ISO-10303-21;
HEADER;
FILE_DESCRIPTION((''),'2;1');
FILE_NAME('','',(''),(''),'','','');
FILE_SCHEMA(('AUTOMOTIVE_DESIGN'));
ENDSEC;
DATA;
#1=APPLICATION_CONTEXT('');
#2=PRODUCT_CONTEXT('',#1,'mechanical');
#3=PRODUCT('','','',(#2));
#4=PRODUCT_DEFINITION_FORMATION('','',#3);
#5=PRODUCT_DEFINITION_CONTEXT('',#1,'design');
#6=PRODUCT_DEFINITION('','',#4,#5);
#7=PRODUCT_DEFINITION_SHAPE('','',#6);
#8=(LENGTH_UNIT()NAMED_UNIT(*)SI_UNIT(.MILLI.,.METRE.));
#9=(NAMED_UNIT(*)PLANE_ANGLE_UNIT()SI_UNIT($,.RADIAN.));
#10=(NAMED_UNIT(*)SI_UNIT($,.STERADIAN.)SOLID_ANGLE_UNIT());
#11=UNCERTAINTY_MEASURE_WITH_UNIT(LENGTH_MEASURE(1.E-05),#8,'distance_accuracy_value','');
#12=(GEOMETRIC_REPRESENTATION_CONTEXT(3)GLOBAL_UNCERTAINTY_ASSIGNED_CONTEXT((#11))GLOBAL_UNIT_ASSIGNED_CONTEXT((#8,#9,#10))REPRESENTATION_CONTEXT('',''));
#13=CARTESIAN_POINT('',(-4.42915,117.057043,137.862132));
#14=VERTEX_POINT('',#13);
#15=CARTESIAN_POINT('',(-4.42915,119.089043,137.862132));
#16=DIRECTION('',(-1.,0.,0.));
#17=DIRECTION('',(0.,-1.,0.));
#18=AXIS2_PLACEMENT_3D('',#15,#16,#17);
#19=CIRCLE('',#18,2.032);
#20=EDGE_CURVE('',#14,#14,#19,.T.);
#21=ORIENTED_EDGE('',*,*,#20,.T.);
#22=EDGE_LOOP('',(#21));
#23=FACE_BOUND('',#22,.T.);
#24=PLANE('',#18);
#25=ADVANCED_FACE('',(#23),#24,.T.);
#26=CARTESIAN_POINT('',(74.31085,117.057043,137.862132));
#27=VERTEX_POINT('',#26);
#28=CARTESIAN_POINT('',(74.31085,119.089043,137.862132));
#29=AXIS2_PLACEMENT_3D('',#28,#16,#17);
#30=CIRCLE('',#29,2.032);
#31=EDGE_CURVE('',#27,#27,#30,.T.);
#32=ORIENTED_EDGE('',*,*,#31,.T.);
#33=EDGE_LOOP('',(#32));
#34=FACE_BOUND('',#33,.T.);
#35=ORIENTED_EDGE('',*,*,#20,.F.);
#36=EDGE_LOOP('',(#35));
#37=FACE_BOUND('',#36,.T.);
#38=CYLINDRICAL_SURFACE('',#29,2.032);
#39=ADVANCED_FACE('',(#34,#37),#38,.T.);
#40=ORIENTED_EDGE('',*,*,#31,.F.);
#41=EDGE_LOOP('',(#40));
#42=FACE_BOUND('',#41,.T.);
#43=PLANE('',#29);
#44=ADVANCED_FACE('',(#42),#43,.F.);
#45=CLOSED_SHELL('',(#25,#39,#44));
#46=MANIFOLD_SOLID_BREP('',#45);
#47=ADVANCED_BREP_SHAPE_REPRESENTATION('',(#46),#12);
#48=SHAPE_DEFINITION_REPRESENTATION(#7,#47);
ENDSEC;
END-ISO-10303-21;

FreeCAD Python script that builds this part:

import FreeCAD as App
import Part
import Sketcher
from FreeCAD import Vector
Q = App.Units.Quantity

doc = App.newDocument("Part")
params = doc.addObject("Spreadsheet::Sheet", "Params")
for row, (alias, value) in enumerate([
    ("sketch1_diameter", "0.16 in"),
    ("pad1_length", "3.1 in"),
], start=1):
    params.set(f"A{row}", alias)
    params.set(f"B{row}", "=" + value)
    params.setAlias(f"B{row}", alias)

body = doc.addObject("PartDesign::Body", "Body")

sketch1 = body.newObject("Sketcher::SketchObject", "Sketch")
sketch1.AttachmentSupport = (doc.getObject("YZ_Plane"), [""])
sketch1.MapMode = "FlatFace"
sketch1.AttachmentOffset = App.Placement(Vector(0, 0, -4.42915), App.Rotation())
sketch1.addGeometry(Part.Circle(Vector(119.1, 137.9, 0), Vector(0, 0, 1), 2), False)
sketch1.addConstraint(Sketcher.Constraint("Diameter", 0, Q("0.16 in")))
sketch1.addConstraint(Sketcher.Constraint("DistanceX", -1, 1, 0, 3, Q("119.089043 mm")))
sketch1.addConstraint(Sketcher.Constraint("DistanceY", -1, 1, 0, 3, Q("137.862132 mm")))
sketch1.setExpression("Constraints[0]", "Params.sketch1_diameter")
pad1 = body.newObject("PartDesign::Pad", "Pad")
pad1.Profile = sketch1
pad1.setExpression("Length", "Params.pad1_length")

doc.recompute()
